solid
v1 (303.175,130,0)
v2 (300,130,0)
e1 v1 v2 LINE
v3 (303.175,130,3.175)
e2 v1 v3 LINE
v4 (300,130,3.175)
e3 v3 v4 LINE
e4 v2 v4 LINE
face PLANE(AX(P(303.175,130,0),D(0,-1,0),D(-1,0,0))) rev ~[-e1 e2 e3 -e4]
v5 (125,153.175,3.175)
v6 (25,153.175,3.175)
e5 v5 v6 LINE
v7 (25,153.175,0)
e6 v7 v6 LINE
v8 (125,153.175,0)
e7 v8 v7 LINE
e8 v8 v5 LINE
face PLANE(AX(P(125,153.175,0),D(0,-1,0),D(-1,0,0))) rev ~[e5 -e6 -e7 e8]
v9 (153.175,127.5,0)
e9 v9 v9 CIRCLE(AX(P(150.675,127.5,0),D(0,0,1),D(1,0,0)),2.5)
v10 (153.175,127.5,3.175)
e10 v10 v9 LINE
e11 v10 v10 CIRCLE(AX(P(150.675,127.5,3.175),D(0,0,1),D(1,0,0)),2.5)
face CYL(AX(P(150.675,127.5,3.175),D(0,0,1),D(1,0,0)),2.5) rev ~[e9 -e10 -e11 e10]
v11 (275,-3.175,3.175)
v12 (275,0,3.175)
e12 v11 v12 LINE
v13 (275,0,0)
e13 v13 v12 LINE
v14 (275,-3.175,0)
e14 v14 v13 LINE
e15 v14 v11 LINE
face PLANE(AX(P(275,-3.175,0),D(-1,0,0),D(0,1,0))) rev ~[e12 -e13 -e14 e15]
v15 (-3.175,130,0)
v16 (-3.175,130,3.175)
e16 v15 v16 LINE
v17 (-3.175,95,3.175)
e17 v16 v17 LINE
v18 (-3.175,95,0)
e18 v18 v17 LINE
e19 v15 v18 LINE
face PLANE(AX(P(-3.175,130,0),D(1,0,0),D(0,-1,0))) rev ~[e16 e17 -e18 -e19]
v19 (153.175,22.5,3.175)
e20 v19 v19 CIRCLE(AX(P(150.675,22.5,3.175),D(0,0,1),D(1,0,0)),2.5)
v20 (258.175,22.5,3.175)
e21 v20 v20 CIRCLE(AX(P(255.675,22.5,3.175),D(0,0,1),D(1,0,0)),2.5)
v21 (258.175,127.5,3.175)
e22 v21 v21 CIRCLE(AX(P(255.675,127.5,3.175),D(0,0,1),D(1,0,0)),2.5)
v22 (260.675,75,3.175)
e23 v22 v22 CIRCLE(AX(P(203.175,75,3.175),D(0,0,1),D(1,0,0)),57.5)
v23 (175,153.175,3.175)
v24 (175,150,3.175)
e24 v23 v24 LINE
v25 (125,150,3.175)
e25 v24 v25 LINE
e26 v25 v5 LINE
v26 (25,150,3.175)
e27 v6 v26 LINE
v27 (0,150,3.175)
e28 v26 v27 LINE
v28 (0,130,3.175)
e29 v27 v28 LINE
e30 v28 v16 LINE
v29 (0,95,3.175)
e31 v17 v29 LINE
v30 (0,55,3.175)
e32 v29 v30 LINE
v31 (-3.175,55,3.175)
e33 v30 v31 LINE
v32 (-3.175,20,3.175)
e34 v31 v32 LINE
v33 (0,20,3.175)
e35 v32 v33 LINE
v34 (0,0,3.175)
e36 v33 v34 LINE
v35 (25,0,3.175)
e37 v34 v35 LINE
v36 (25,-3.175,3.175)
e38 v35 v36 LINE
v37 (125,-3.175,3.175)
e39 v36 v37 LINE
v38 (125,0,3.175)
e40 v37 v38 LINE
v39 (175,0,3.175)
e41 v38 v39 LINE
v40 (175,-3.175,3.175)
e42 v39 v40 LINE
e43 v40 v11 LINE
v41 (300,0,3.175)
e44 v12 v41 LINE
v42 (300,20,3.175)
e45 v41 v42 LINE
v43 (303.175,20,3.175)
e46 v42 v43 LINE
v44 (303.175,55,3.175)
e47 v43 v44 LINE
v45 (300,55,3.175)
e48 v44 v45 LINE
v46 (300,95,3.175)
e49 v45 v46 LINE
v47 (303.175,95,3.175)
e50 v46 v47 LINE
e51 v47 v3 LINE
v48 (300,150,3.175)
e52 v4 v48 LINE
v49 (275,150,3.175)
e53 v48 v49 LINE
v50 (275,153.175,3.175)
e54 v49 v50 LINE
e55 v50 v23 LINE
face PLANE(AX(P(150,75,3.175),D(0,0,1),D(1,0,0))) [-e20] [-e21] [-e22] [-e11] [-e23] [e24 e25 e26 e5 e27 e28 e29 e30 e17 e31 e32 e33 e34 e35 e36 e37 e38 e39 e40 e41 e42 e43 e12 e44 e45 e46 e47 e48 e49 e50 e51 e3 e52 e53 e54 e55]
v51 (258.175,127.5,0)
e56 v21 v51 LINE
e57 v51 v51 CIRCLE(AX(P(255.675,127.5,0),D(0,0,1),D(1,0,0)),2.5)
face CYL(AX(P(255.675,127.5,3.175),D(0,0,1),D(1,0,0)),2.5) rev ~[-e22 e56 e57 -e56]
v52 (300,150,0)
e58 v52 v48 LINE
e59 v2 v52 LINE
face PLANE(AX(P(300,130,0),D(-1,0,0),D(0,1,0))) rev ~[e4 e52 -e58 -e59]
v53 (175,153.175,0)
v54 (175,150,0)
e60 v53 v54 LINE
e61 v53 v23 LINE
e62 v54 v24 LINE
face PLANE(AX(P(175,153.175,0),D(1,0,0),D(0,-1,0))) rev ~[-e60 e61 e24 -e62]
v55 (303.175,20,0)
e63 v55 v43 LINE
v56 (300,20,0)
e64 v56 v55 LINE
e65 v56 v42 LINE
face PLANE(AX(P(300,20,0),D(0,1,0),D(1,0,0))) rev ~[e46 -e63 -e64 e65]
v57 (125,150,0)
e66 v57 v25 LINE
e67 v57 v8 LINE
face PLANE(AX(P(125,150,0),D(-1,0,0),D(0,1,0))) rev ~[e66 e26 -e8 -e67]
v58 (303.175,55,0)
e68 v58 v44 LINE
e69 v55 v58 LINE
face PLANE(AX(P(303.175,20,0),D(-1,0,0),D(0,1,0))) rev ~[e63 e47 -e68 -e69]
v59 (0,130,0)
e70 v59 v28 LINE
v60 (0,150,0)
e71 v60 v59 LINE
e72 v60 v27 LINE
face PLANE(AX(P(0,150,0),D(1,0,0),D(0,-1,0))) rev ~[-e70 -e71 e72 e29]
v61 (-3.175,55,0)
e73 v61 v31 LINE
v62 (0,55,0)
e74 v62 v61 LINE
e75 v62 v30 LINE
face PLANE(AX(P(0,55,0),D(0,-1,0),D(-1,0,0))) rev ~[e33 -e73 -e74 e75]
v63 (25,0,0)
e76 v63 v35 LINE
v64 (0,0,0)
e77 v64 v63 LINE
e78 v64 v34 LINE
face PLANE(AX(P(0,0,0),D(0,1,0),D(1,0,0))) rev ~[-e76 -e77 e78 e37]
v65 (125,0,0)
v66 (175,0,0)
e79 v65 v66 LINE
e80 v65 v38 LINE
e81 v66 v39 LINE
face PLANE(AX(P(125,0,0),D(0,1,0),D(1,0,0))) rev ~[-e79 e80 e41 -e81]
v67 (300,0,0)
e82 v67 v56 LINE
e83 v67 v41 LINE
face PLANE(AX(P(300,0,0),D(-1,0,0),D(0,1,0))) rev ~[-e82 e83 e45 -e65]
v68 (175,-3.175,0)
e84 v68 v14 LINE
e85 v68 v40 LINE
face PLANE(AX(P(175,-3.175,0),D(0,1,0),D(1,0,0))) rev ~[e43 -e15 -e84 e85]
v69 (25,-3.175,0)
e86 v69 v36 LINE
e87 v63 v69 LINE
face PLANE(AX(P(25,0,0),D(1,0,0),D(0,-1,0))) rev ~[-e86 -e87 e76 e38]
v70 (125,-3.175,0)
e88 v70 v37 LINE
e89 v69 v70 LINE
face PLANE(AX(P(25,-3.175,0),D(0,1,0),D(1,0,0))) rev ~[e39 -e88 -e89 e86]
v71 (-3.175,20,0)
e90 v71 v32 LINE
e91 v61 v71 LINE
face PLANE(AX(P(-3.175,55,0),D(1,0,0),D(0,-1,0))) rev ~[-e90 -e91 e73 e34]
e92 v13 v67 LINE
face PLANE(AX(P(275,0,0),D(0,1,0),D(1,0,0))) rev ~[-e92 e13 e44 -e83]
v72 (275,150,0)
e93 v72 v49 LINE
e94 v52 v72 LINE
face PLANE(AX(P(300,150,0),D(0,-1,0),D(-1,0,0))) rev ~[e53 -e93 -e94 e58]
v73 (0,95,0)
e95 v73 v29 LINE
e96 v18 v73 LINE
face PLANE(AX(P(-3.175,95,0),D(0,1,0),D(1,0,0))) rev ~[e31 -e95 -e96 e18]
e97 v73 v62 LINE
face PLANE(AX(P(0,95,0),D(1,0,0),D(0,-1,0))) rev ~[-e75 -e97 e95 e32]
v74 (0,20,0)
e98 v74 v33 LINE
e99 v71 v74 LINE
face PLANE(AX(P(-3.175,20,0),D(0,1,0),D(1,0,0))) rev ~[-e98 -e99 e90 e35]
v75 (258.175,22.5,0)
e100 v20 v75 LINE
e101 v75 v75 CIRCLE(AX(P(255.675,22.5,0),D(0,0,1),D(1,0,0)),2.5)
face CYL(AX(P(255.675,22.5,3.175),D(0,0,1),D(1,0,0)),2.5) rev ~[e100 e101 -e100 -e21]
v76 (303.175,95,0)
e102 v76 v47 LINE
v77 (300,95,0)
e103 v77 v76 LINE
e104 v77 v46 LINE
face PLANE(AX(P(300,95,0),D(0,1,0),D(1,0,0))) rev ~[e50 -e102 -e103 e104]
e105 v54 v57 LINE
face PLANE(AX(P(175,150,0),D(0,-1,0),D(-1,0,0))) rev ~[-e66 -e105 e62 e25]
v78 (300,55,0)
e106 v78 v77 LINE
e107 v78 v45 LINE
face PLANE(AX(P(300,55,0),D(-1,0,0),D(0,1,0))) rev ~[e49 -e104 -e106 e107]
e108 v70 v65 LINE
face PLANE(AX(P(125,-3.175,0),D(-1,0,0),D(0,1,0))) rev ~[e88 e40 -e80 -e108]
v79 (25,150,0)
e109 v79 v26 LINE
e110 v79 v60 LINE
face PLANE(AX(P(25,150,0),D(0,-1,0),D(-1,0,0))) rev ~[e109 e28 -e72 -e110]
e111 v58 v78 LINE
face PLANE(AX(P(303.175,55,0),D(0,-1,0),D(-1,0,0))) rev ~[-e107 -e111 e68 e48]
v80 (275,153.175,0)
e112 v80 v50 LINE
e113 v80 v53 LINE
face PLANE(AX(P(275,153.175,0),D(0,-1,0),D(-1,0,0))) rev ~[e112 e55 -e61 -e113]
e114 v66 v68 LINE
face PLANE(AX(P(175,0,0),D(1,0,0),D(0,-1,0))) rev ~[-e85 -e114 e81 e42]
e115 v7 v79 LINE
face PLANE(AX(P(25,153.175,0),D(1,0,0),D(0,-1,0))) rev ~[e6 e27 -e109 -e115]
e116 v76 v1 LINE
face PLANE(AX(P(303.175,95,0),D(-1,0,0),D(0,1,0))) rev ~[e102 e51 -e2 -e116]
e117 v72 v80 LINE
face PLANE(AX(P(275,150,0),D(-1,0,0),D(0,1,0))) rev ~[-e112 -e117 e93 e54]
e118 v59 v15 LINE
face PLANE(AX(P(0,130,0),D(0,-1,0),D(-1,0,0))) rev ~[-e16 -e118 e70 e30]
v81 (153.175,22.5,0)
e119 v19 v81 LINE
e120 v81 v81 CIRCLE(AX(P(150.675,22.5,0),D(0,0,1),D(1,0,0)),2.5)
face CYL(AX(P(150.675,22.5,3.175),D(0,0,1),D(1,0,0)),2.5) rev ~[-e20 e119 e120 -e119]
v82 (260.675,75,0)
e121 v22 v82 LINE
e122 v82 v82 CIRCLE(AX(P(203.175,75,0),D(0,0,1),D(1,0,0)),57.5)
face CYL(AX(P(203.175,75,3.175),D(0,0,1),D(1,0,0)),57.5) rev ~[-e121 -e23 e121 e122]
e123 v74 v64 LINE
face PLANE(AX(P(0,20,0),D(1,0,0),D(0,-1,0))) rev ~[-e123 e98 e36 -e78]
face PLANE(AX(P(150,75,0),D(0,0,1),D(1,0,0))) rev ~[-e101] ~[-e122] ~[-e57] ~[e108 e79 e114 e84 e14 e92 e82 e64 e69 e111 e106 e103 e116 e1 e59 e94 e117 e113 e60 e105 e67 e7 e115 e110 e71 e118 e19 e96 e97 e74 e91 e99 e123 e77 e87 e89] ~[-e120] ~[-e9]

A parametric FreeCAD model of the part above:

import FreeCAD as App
import Part
import Sketcher
Q = App.Units.Quantity


def add_polygon(sketch, points):
    """Adds a closed chain of lines whose ends are joined by coincident constraints."""
    first, n = sketch.GeometryCount, len(points)
    for a, b in zip(points, points[1:] + points[:1]):
        sketch.addGeometry(Part.LineSegment(App.Vector(*a, 0), App.Vector(*b, 0)), False)
    for i in range(n):
        sketch.addConstraint(Sketcher.Constraint("Coincident", first + i, 2, first + (i + 1) % n, 1))

doc = App.newDocument("Part")
body = doc.addObject("PartDesign::Body", "Body")

# Sketch on XY plane
sketch1 = body.newObject("Sketcher::SketchObject", "Sketch")
sketch1.AttachmentSupport = (doc.getObject("XY_Plane"), [""])
sketch1.MapMode = "FlatFace"
add_polygon(sketch1, [(125, 0), (175, 0), (175, -3.175), (275, -3.175), (275, 0), (300, 0), (300, 20), (303.175, 20), (303.175, 55), (300, 55), (300, 95), (303.175, 95), (303.175, 130), (300, 130), (300, 150), (275, 150), (275, 153.175), (175, 153.175), (175, 150), (125, 150), (125, 153.175), (25, 153.175), (25, 150), (0, 150), (0, 130), (-3.175, 130), (-3.175, 95), (0, 95), (0, 55), (-3.175, 55), (-3.175, 20), (0, 20), (0, 0), (25, 0), (25, -3.175), (125, -3.175)])  # lines 0-35
sketch1.addConstraint([
    Sketcher.Constraint("Horizontal", 0),
    Sketcher.Constraint("Vertical", 1),
    Sketcher.Constraint("Horizontal", 2),
    Sketcher.Constraint("Vertical", 3),
    Sketcher.Constraint("Horizontal", 4),
    Sketcher.Constraint("Vertical", 5),
    Sketcher.Constraint("Horizontal", 6),
    Sketcher.Constraint("Vertical", 7),
    Sketcher.Constraint("Horizontal", 8),
    Sketcher.Constraint("Vertical", 9),
    Sketcher.Constraint("Horizontal", 10),
    Sketcher.Constraint("Vertical", 11),
    Sketcher.Constraint("Horizontal", 12),
    Sketcher.Constraint("Vertical", 13),
    Sketcher.Constraint("Horizontal", 14),
    Sketcher.Constraint("Vertical", 15),
    Sketcher.Constraint("Horizontal", 16),
    Sketcher.Constraint("Vertical", 17),
    Sketcher.Constraint("Horizontal", 18),
    Sketcher.Constraint("Vertical", 19),
    Sketcher.Constraint("Horizontal", 20),
    Sketcher.Constraint("Vertical", 21),
    Sketcher.Constraint("Horizontal", 22),
    Sketcher.Constraint("Vertical", 23),
    Sketcher.Constraint("Horizontal", 24),
    Sketcher.Constraint("Vertical", 25),
    Sketcher.Constraint("Horizontal", 26),
    Sketcher.Constraint("Vertical", 27),
    Sketcher.Constraint("Horizontal", 28),
    Sketcher.Constraint("Vertical", 29),
    Sketcher.Constraint("Horizontal", 30),
    Sketcher.Constraint("Vertical", 31),
    Sketcher.Constraint("Horizontal", 32),
    Sketcher.Constraint("Vertical", 33),
    Sketcher.Constraint("Horizontal", 34),
    Sketcher.Constraint("Vertical", 35),
    Sketcher.Constraint("Coincident", 31, 2, -1, 1),
    Sketcher.Constraint("PointOnObject", 0, 2, -1),
    Sketcher.Constraint("PointOnObject", 3, 2, -1),
    Sketcher.Constraint("PointOnObject", 22, 2, -2),
    Sketcher.Constraint("PointOnObject", 26, 2, -2),
    Sketcher.Constraint("Horizontal", 14, 2, 17, 2),
    Sketcher.Constraint("Horizontal", 16, 2, 19, 2),
    Sketcher.Constraint("Horizontal", 18, 2, 21, 2),
    Sketcher.Constraint("Horizontal", 12, 2, 23, 2),
    Sketcher.Constraint("Horizontal", 10, 2, 25, 2),
    Sketcher.Constraint("Horizontal", 8, 2, 27, 2),
    Sketcher.Constraint("Horizontal", 6, 2, 29, 2),
    Sketcher.Constraint("Horizontal", 2, 2, 33, 2),
    Sketcher.Constraint("Vertical", 5, 2, 8, 2),
    Sketcher.Constraint("Vertical", 7, 2, 10, 2),
    Sketcher.Constraint("Vertical", 9, 2, 12, 2),
    Sketcher.Constraint("Vertical", 3, 2, 14, 2),
    Sketcher.Constraint("Vertical", 1, 2, 16, 2),
    Sketcher.Constraint("Vertical", 25, 2, 28, 2),
    Sketcher.Constraint("Vertical", 21, 2, 32, 2),
    Sketcher.Constraint("Vertical", 19, 2, 34, 2),
    Sketcher.Constraint("Equal", 16, 20),
    Sketcher.Constraint("Equal", 14, 22),
    Sketcher.Constraint("Equal", 12, 24),
    Sketcher.Constraint("Equal", 30, 1),
    Sketcher.Constraint("Equal", 7, 11),
    Sketcher.Constraint("Equal", 5, 13),
    Sketcher.Constraint("Equal", 3, 15),
    Sketcher.Constraint("DistanceX", 0, 1, 0, 2, Q("50 mm")),
    Sketcher.Constraint("DistanceX", 2, 1, 2, 2, Q("100 mm")),
    Sketcher.Constraint("DistanceX", 4, 1, 4, 2, Q("25 mm")),
    Sketcher.Constraint("DistanceY", 5, 1, 5, 2, Q("20 mm")),
    Sketcher.Constraint("DistanceY", 7, 1, 7, 2, Q("35 mm")),
    Sketcher.Constraint("DistanceY", 9, 1, 9, 2, Q("40 mm")),
    Sketcher.Constraint("DistanceX", 6, 1, 6, 2, Q("3.175 mm")),
])
pad1 = body.newObject("PartDesign::Pad", "Pad")
pad1.Profile = sketch1
pad1.Length = 3.175

# Sketch on XY plane
sketch2 = body.newObject("Sketcher::SketchObject", "Sketch001")
sketch2.AttachmentSupport = (doc.getObject("XY_Plane"), [""])
sketch2.MapMode = "FlatFace"
sketch2.AttachmentOffset = App.Placement(App.Vector(0, 0, 3.175), App.Rotation())
sketch2.addGeometry([
    Part.Circle(App.Vector(203.175, 75, 0), App.Vector(0, 0, 1), 57.5),  # 0
    Part.Circle(App.Vector(150.675, 127.5, 0), App.Vector(0, 0, 1), 2.5),  # 1
    Part.Circle(App.Vector(150.675, 22.5, 0), App.Vector(0, 0, 1), 2.5),  # 2
    Part.Circle(App.Vector(255.675, 127.5, 0), App.Vector(0, 0, 1), 2.5),  # 3
    Part.Circle(App.Vector(255.675, 22.5, 0), App.Vector(0, 0, 1), 2.5),  # 4
], False)
sketch2.addConstraint([
    Sketcher.Constraint("Equal", 1, 2),
    Sketcher.Constraint("Equal", 2, 3),
    Sketcher.Constraint("Equal", 3, 4),
    Sketcher.Constraint("Horizontal", 1, 3, 3, 3),
    Sketcher.Constraint("Horizontal", 2, 3, 4, 3),
    Sketcher.Constraint("Vertical", 1, 3, 2, 3),
    Sketcher.Constraint("Vertical", 3, 3, 4, 3),
    Sketcher.Constraint("Diameter", 0, Q("115 mm")),
    Sketcher.Constraint("Diameter", 1, Q("5 mm")),
    Sketcher.Constraint("DistanceY", -1, 1, 0, 3, Q("75 mm")),
    Sketcher.Constraint("DistanceY", 2, 3, 1, 3, Q("105 mm")),
    Sketcher.Constraint("DistanceX", 1, 3, 3, 3, Q("105 mm")),
    Sketcher.Constraint("DistanceY", -1, 1, 1, 3, Q("127.5 mm")),
    Sketcher.Constraint("DistanceX", 1, 3, 0, 3, Q("52.5 mm")),
    Sketcher.Constraint("DistanceX", -1, 1, 0, 3, Q("203.175 mm")),
])
pocket1 = body.newObject("PartDesign::Pocket", "Pocket")
pocket1.Profile = sketch2
pocket1.Type = "ThroughAll"

doc.recompute()
